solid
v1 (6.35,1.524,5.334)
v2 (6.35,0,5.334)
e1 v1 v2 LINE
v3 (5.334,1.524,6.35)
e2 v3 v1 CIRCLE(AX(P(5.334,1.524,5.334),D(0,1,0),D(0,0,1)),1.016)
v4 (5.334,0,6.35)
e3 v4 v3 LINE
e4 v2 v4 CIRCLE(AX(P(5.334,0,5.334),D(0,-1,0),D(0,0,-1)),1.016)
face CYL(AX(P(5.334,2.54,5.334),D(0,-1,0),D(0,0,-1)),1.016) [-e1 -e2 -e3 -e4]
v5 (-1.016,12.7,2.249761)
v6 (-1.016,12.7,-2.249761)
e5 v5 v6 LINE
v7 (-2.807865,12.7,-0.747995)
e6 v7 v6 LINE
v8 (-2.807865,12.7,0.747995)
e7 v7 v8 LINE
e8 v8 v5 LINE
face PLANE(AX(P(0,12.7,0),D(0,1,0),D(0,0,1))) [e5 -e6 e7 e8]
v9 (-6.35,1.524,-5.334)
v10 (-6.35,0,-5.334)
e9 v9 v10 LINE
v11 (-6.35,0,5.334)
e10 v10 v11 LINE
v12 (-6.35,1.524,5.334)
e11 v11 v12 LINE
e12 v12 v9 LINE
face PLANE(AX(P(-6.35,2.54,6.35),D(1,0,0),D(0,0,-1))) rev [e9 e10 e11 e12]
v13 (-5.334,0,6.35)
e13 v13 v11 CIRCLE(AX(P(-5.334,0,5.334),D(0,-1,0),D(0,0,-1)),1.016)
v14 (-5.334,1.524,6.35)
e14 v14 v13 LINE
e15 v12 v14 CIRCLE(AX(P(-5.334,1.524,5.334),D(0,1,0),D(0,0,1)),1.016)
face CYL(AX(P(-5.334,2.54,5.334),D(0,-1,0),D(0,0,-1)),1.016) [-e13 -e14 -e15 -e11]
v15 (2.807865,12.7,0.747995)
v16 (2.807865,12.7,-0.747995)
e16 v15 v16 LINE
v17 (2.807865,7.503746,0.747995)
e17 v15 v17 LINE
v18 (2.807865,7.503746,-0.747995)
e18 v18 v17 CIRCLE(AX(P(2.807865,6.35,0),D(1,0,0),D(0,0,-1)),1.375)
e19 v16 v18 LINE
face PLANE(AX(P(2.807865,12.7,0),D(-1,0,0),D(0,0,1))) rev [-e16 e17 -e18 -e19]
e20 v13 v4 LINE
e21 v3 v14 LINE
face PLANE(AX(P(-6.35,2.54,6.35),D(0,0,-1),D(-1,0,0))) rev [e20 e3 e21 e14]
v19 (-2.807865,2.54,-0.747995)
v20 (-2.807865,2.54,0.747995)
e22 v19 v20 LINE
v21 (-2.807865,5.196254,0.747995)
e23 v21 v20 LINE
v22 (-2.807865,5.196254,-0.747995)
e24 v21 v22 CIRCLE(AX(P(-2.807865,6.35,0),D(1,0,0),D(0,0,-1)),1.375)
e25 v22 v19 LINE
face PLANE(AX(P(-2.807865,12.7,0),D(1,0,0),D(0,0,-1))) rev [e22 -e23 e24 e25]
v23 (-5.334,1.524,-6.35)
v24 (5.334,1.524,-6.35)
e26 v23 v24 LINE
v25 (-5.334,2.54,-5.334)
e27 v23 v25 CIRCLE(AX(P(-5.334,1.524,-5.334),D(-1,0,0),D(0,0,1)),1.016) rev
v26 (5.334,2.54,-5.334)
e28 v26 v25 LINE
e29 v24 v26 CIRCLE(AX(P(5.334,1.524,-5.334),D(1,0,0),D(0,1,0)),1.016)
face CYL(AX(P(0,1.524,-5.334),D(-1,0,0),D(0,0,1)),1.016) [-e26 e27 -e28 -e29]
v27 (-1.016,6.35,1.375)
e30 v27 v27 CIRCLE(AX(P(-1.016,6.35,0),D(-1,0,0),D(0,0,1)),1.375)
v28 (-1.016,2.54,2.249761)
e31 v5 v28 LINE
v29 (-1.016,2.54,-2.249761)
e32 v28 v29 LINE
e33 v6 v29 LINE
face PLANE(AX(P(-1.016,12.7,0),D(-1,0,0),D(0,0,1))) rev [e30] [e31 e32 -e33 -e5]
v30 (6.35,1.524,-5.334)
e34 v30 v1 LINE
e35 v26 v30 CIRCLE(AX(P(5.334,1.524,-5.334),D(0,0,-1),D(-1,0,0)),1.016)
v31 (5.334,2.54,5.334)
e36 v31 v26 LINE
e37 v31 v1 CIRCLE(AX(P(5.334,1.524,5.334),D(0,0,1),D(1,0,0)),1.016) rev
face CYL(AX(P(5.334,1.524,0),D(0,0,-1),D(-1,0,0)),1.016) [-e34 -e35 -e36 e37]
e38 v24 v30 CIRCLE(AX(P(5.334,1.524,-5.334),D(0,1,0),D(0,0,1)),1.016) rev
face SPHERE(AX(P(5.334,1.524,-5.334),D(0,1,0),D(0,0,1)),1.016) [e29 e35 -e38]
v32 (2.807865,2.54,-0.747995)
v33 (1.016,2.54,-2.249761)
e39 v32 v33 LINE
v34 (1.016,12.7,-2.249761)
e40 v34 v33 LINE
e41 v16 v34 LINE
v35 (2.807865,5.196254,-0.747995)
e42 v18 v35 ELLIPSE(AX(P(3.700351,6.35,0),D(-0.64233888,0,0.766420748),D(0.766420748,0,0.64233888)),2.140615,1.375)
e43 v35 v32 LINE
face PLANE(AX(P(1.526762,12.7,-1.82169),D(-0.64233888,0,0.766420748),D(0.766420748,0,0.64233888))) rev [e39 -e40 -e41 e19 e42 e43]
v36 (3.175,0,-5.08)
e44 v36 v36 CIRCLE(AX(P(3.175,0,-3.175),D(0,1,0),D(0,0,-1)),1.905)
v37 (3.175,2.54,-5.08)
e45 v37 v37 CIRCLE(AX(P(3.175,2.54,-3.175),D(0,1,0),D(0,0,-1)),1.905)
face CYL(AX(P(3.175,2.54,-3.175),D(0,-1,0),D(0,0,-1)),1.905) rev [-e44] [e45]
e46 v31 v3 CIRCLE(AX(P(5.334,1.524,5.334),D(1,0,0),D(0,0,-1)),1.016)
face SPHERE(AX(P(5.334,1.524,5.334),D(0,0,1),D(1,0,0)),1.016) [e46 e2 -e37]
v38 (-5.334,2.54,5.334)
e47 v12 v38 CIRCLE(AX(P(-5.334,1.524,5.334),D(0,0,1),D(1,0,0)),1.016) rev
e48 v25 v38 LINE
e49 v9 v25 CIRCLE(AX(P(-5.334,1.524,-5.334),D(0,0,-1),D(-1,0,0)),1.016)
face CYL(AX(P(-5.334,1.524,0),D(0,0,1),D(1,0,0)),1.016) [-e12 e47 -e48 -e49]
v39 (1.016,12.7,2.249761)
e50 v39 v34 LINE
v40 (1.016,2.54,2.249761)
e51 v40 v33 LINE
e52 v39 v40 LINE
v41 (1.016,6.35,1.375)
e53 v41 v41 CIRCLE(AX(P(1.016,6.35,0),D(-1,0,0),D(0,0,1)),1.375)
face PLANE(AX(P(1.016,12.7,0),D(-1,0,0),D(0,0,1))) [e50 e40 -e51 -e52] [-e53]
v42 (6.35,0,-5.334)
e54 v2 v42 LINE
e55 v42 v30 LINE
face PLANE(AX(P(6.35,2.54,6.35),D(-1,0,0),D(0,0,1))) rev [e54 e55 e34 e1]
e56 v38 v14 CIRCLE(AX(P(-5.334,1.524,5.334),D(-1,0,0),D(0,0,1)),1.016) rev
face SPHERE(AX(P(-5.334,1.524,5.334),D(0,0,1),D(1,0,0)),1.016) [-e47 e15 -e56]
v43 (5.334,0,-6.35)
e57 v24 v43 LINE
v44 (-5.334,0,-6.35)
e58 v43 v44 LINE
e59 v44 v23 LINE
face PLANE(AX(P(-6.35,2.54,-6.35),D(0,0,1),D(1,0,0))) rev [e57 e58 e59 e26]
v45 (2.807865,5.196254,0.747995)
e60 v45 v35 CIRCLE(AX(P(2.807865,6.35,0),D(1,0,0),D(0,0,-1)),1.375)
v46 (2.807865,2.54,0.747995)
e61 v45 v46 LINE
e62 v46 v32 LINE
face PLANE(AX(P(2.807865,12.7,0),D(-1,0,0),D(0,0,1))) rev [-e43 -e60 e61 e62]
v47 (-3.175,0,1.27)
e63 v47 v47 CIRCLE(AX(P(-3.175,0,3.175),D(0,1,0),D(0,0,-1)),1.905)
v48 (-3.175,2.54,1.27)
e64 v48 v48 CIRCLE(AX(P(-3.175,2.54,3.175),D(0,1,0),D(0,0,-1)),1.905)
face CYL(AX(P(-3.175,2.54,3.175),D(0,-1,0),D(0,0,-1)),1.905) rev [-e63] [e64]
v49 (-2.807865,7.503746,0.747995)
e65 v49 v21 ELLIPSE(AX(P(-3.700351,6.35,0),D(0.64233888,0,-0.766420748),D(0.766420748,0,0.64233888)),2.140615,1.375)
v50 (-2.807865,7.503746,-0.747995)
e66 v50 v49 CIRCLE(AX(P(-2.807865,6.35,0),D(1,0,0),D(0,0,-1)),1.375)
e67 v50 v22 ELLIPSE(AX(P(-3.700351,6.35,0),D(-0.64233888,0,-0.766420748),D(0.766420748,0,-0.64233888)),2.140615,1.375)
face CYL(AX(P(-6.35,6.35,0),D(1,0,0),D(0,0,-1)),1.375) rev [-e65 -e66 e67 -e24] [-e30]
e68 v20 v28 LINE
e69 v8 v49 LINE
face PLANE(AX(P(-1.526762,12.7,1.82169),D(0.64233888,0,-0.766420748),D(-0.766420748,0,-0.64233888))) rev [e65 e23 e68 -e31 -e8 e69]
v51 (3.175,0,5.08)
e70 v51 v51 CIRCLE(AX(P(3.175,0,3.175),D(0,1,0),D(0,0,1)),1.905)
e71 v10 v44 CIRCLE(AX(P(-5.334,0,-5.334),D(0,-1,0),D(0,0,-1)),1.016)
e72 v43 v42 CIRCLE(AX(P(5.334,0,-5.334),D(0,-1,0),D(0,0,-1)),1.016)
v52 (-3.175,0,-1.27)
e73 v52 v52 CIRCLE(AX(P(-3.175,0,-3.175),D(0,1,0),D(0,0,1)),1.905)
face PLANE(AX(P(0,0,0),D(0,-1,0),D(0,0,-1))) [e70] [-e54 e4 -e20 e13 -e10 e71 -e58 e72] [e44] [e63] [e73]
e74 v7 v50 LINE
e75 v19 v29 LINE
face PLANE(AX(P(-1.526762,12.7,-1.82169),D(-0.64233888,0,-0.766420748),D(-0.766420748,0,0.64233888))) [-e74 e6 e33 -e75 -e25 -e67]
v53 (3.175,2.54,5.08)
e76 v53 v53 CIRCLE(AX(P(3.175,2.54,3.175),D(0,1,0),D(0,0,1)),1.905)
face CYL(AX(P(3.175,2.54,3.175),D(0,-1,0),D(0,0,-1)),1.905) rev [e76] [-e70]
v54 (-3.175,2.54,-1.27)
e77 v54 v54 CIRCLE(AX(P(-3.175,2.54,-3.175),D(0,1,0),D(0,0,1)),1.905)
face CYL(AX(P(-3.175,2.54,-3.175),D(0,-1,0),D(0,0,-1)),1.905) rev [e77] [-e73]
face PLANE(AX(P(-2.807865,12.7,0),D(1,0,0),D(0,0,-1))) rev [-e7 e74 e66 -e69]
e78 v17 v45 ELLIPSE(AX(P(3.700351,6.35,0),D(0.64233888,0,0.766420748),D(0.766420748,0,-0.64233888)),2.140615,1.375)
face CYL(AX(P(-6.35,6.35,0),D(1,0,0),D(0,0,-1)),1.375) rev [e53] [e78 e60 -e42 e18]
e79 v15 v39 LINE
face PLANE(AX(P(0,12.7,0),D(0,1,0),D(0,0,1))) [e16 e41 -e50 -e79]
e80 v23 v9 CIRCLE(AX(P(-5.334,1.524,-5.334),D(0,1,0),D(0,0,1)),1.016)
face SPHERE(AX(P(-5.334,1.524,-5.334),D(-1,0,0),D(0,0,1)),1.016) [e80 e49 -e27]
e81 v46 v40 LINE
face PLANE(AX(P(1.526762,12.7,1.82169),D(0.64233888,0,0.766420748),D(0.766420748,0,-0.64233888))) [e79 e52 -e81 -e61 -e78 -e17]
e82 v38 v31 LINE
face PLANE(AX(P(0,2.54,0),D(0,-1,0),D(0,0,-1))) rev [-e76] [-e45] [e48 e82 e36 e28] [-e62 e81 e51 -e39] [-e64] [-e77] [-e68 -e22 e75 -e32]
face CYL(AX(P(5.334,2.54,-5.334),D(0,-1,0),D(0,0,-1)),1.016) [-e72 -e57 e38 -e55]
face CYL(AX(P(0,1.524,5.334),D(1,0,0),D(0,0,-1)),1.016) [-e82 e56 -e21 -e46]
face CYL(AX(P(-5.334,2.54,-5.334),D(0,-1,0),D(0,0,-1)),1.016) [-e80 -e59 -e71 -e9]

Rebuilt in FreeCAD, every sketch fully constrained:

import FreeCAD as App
import Part
import Sketcher

V = App.Vector
Q = App.Units.Quantity


def edges_at(feature, points):
    """Names of the edges that pass closest to the given points."""
    edges = feature.Shape.Edges
    near = lambda p: min(range(len(edges)), key=lambda i: edges[i].distToShape(Part.Vertex(*p))[0])
    return sorted({f"Edge{near(p) + 1}" for p in points})

doc = App.newDocument("Part")
body = doc.addObject("PartDesign::Body", "Body")

# Sketch on XZ plane
sketch1 = body.newObject("Sketcher::SketchObject", "Sketch")
sketch1.AttachmentSupport = (doc.getObject("XZ_Plane"), [""])
sketch1.MapMode = "FlatFace"
sketch1.addGeometry(Part.LineSegment(V(-6.3, -6.3, 0), V(-6.3, 6.3, 0)), False)
sketch1.addGeometry(Part.LineSegment(V(-6.3, 6.3, 0), V(6.3, 6.3, 0)), False)
sketch1.addGeometry(Part.LineSegment(V(6.3, 6.3, 0), V(6.3, -6.3, 0)), False)
sketch1.addGeometry(Part.LineSegment(V(6.3, -6.3, 0), V(-6.3, -6.3, 0)), False)
sketch1.addGeometry(Part.Circle(V(-3.2, 3.2, 0), V(0, 0, 1), 1.9), False)
sketch1.addGeometry(Part.Circle(V(3.2, 3.2, 0), V(0, 0, 1), 1.9), False)
sketch1.addGeometry(Part.Circle(V(-3.2, -3.2, 0), V(0, 0, 1), 1.9), False)
sketch1.addGeometry(Part.Circle(V(3.2, -3.2, 0), V(0, 0, 1), 1.9), False)
sketch1.addConstraint(Sketcher.Constraint("Coincident", 0, 2, 1, 1))
sketch1.addConstraint(Sketcher.Constraint("Coincident", 1, 2, 2, 1))
sketch1.addConstraint(Sketcher.Constraint("Coincident", 2, 2, 3, 1))
sketch1.addConstraint(Sketcher.Constraint("Coincident", 3, 2, 0, 1))
sketch1.addConstraint(Sketcher.Constraint("Vertical", 0))
sketch1.addConstraint(Sketcher.Constraint("Horizontal", 1))
sketch1.addConstraint(Sketcher.Constraint("Vertical", 2))
sketch1.addConstraint(Sketcher.Constraint("Horizontal", 3))
sketch1.addConstraint(Sketcher.Constraint("Equal", 4, 5))
sketch1.addConstraint(Sketcher.Constraint("Equal", 5, 6))
sketch1.addConstraint(Sketcher.Constraint("Equal", 6, 7))
sketch1.addConstraint(Sketcher.Constraint("Symmetric", 5, 3, 6, 3, -1, 1))
sketch1.addConstraint(Sketcher.Constraint("Symmetric", 4, 3, 7, 3, -1, 1))
sketch1.addConstraint(Sketcher.Constraint("Symmetric", 0, 2, 2, 2, -1, 1))
sketch1.addConstraint(Sketcher.Constraint("Symmetric", 4, 3, 5, 3, -2))
sketch1.addConstraint(Sketcher.Constraint("Equal", 3, 0))
sketch1.addConstraint(Sketcher.Constraint("Diameter", 4, Q("0.15 in")))
sketch1.addConstraint(Sketcher.Constraint("DistanceX", 1, 1, 1, 2, Q("0.5 in")))
sketch1.addConstraint(Sketcher.Constraint("DistanceX", 4, 3, 5, 3, Q("0.25 in")))
sketch1.addConstraint(Sketcher.Constraint("DistanceY", 6, 3, 4, 3, Q("0.25 in")))
pad1 = body.newObject("PartDesign::Pad", "Pad")
pad1.Profile = sketch1
pad1.Length = Q("0.1 in")
pad1.Reversed = True

# Sketch on XZ plane
sketch2 = body.newObject("Sketcher::SketchObject", "Sketch001")
sketch2.AttachmentSupport = (doc.getObject("XZ_Plane"), [""])
sketch2.MapMode = "FlatFace"
sketch2.AttachmentOffset = App.Placement(V(0, 0, -0.1 * 25.4), App.Rotation())
sketch2.addGeometry(Part.LineSegment(V(-1, -2.2, 0), V(-2.8, -0.7, 0)), False)
sketch2.addGeometry(Part.LineSegment(V(-2.8, -0.7, 0), V(-2.8, 0.7, 0)), False)
sketch2.addGeometry(Part.LineSegment(V(-2.8, 0.7, 0), V(-1, 2.2, 0)), False)
sketch2.addGeometry(Part.LineSegment(V(-1, 2.2, 0), V(-1, -2.2, 0)), False)
sketch2.addGeometry(Part.LineSegment(V(2.8, -0.7, 0), V(1, -2.2, 0)), False)
sketch2.addGeometry(Part.LineSegment(V(1, -2.2, 0), V(1, 2.2, 0)), False)
sketch2.addGeometry(Part.LineSegment(V(1, 2.2, 0), V(2.8, 0.7, 0)), False)
sketch2.addGeometry(Part.LineSegment(V(2.8, 0.7, 0), V(2.8, -0.7, 0)), False)
sketch2.addConstraint(Sketcher.Constraint("Coincident", 0, 2, 1, 1))
sketch2.addConstraint(Sketcher.Constraint("Coincident", 1, 2, 2, 1))
sketch2.addConstraint(Sketcher.Constraint("Coincident", 2, 2, 3, 1))
sketch2.addConstraint(Sketcher.Constraint("Coincident", 3, 2, 0, 1))
sketch2.addConstraint(Sketcher.Constraint("Coincident", 4, 2, 5, 1))
sketch2.addConstraint(Sketcher.Constraint("Coincident", 5, 2, 6, 1))
sketch2.addConstraint(Sketcher.Constraint("Coincident", 6, 2, 7, 1))
sketch2.addConstraint(Sketcher.Constraint("Coincident", 7, 2, 4, 1))
sketch2.addConstraint(Sketcher.Constraint("Vertical", 1))
sketch2.addConstraint(Sketcher.Constraint("Vertical", 3))
sketch2.addConstraint(Sketcher.Constraint("Vertical", 5))
sketch2.addConstraint(Sketcher.Constraint("Vertical", 7))
sketch2.addConstraint(Sketcher.Constraint("Symmetric", 2, 2, 4, 2, -1, 1))
sketch2.addConstraint(Sketcher.Constraint("Symmetric", 0, 2, 6, 2, -1, 1))
sketch2.addConstraint(Sketcher.Constraint("Parallel", 2, 4))
sketch2.addConstraint(Sketcher.Constraint("Parallel", 0, 6))
sketch2.addConstraint(Sketcher.Constraint("Horizontal", 3, 2, 4, 2))
sketch2.addConstraint(Sketcher.Constraint("Horizontal", 1, 2, 6, 2))
sketch2.addConstraint(Sketcher.Constraint("DistanceX", 2, 2, -1, 1, Q("0.04 in")))
sketch2.addConstraint(Sketcher.Constraint("DistanceY", 1, 1, 1, 2, 1.49599))
sketch2.addConstraint(Sketcher.Constraint("DistanceY", 3, 2, 3, 1, 4.499521))
sketch2.addConstraint(Sketcher.Constraint("DistanceX", 1, 2, 6, 2, 5.61573))
pad2 = body.newObject("PartDesign::Pad", "Pad001")
pad2.Profile = sketch2
pad2.Length = Q("0.4 in")
pad2.Reversed = True

# Sketch on YZ plane
sketch3 = body.newObject("Sketcher::SketchObject", "Sketch002")
sketch3.AttachmentSupport = (doc.getObject("YZ_Plane"), [""])
sketch3.MapMode = "FlatFace"
sketch3.AttachmentOffset = App.Placement(V(0, 0, 2.807865), App.Rotation())
sketch3.addGeometry(Part.Circle(V(6.3, 0, 0), V(0, 0, 1), 1.4), False)
sketch3.addConstraint(Sketcher.Constraint("PointOnObject", 0, 3, -1))
sketch3.addConstraint(Sketcher.Constraint("Diameter", 0, 2.75))
sketch3.addConstraint(Sketcher.Constraint("DistanceX", -1, 1, 0, 3, Q("0.25 in")))
pocket1 = body.newObject("PartDesign::Pocket", "Pocket")
pocket1.Profile = sketch3
pocket1.Type = "ThroughAll"
doc.recompute()

fillet = body.newObject("PartDesign::Fillet", "Fillet")
fillet.Base = (pocket1, edges_at(pocket1, [
    (-6.35, 2.54, 0),
    (0, 2.54, 6.35),
    (6.35, 2.54, 0),
    (6.35, 1.27, 6.35),
    (-6.35, 1.27, 6.35),
    (-6.35, 1.27, -6.35),
    (6.35, 1.27, -6.35),
    (0, 2.54, -6.35),
]))
fillet.Radius = Q("0.04 in")

doc.recompute()
